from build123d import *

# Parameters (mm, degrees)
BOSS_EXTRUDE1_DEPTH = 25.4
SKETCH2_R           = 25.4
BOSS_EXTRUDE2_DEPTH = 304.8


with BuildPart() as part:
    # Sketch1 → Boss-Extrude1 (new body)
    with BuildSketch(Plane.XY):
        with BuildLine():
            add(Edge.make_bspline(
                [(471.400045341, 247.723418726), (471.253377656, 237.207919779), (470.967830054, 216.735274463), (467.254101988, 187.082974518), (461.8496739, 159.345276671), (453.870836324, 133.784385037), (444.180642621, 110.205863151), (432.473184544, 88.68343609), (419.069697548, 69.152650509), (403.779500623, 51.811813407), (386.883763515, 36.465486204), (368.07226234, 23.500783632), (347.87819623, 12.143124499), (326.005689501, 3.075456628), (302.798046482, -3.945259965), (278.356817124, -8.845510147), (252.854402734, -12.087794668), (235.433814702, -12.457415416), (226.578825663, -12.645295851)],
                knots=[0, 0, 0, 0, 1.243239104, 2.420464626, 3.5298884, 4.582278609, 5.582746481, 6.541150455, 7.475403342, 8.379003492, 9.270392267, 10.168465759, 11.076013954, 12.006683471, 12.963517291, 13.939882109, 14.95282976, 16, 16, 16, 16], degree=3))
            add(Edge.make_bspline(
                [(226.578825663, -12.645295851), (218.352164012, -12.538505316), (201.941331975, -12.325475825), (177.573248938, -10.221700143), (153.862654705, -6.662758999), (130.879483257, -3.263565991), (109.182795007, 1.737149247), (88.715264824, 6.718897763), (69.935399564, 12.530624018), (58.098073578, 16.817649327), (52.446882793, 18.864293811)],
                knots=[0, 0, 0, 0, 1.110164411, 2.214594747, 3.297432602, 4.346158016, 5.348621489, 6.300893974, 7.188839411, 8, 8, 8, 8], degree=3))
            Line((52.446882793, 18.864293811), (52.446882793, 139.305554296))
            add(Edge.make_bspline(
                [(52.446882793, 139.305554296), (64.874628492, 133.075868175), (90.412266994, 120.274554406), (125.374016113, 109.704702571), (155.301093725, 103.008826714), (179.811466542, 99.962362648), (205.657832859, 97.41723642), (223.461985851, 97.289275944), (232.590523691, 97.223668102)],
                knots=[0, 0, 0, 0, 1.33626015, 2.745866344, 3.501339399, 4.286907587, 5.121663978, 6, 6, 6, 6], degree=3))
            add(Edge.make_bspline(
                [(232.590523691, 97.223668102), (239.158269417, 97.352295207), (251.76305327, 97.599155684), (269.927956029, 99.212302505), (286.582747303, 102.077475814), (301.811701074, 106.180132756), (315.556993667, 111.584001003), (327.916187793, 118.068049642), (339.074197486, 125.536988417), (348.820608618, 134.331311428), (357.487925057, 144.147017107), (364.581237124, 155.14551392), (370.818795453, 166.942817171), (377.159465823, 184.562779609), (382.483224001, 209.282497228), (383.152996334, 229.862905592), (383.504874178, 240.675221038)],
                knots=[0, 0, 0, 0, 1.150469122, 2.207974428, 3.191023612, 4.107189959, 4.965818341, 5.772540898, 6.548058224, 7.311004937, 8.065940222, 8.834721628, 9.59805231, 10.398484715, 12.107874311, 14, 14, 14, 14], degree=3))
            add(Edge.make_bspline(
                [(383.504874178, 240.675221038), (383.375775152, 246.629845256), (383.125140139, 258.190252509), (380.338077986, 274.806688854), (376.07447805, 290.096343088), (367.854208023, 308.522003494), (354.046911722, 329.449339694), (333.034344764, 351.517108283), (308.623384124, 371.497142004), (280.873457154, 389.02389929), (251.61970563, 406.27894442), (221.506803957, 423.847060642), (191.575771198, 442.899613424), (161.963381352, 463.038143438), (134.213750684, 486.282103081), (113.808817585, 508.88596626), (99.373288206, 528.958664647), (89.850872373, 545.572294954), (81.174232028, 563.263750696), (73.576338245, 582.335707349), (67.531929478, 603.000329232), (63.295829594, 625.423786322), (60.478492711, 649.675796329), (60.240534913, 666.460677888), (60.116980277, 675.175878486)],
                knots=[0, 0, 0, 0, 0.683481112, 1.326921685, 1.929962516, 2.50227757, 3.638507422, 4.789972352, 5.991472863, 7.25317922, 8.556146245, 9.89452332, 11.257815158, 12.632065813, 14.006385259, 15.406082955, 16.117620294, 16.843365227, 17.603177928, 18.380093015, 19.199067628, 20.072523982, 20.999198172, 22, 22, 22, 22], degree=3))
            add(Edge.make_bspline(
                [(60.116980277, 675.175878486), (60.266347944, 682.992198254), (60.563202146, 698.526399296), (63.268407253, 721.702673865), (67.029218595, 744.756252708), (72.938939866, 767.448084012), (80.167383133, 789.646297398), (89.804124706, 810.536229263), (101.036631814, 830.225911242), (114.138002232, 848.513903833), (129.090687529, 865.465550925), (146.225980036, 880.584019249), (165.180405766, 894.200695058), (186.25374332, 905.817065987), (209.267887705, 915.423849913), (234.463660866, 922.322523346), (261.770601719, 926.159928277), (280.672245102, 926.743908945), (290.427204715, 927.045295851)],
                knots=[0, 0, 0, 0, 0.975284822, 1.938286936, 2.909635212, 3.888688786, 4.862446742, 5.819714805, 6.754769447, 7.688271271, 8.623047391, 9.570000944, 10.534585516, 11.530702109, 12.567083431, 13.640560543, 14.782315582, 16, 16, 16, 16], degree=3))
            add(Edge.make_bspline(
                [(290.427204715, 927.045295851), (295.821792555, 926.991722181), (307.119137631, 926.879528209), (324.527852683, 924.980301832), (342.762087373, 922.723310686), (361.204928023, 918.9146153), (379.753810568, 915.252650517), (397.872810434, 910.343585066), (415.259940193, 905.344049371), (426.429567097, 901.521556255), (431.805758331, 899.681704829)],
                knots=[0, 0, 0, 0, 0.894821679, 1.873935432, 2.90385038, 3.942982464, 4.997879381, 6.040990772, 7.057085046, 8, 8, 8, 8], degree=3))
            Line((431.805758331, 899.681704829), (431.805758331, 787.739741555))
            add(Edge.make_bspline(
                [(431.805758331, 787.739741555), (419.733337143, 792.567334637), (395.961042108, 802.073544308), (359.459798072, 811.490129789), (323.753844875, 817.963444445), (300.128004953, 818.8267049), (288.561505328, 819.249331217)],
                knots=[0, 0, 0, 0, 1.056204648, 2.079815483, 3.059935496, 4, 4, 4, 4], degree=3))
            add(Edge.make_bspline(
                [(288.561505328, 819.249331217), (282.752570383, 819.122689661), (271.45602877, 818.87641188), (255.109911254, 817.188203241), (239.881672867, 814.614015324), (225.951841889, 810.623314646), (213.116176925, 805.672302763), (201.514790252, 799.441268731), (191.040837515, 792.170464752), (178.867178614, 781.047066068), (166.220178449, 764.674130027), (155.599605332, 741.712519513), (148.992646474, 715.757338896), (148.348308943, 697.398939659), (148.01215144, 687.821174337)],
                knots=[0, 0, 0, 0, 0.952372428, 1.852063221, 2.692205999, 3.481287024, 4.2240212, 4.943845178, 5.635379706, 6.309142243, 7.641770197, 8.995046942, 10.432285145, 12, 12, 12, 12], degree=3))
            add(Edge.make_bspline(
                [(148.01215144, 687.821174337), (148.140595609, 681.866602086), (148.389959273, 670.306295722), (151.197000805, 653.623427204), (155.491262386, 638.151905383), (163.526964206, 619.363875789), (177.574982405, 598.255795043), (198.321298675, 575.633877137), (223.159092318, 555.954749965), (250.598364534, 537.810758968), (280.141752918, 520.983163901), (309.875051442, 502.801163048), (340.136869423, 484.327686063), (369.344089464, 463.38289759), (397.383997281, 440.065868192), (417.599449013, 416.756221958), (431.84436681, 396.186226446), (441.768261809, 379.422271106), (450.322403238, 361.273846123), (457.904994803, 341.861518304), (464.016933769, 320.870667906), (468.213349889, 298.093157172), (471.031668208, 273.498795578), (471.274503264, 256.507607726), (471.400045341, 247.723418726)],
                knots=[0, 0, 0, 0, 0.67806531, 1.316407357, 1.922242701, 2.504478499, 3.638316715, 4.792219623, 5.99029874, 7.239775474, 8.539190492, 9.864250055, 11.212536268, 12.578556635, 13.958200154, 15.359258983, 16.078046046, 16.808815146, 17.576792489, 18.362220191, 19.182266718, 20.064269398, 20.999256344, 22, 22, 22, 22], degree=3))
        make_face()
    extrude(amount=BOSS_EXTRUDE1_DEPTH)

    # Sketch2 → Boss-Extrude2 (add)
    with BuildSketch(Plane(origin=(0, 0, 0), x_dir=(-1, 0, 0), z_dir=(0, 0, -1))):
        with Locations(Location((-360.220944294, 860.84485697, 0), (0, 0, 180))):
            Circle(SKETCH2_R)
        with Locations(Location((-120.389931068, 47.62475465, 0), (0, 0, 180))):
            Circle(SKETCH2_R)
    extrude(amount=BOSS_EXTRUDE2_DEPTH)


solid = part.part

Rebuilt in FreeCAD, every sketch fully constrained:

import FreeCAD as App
import Part
import Sketcher

V = App.Vector
Q = App.Units.Quantity

doc = App.newDocument("Part")
body = doc.addObject("PartDesign::Body", "Body")

# Sketch on XY plane
sketch1 = body.newObject("Sketcher::SketchObject", "Sketch")
sketch1.AttachmentSupport = (doc.getObject("XY_Plane"), [""])
sketch1.MapMode = "FlatFace"
sketch1.addGeometry(Part.BSplineCurve([V(471.400045, 247.723419, 0), V(471.253378, 237.20792, 0), V(470.96783, 216.735274, 0), V(467.254102, 187.082975, 0), V(461.849674, 159.345277, 0), V(453.870836, 133.784385, 0), V(444.180643, 110.205863, 0), V(432.473185, 88.683436, 0), V(419.069698, 69.152651, 0), V(403.779501, 51.811813, 0), V(386.883764, 36.465486, 0), V(368.072262, 23.500784, 0), V(347.878196, 12.143124, 0), V(326.00569, 3.075457, 0), V(302.798046, -3.94526, 0), V(278.356817, -8.84551, 0), V(252.854403, -12.087795, 0), V(235.433815, -12.457415, 0), V(226.578826, -12.645296, 0)], [4, 1, 1, 1, 1, 1, 1, 1, 1, 1, 1, 1, 1, 1, 1, 1, 4], [0, 1.243239104, 2.420464626, 3.5298884, 4.582278609, 5.582746481, 6.541150455, 7.475403342, 8.379003492, 9.270392267, 10.168465759, 11.076013954, 12.006683471, 12.963517291, 13.939882109, 14.95282976, 16], False, 3, [1, 1, 1, 1, 1, 1, 1, 1, 1, 1, 1, 1, 1, 1, 1, 1, 1, 1, 1], False), False)
sketch1.addGeometry(Part.BSplineCurve([V(148.012151, 687.821174, 0), V(148.140596, 681.866602, 0), V(148.389959, 670.306296, 0), V(151.197001, 653.623427, 0), V(155.491262, 638.151905, 0), V(163.526964, 619.363876, 0), V(177.574982, 598.255795, 0), V(198.321299, 575.633877, 0), V(223.159092, 555.95475, 0), V(250.598365, 537.810759, 0), V(280.141753, 520.983164, 0), V(309.875051, 502.801163, 0), V(340.136869, 484.327686, 0), V(369.344089, 463.382898, 0), V(397.383997, 440.065868, 0), V(417.599449, 416.756222, 0), V(431.844367, 396.186226, 0), V(441.768262, 379.422271, 0), V(450.322403, 361.273846, 0), V(457.904995, 341.861518, 0), V(464.016934, 320.870668, 0), V(468.21335, 298.093157, 0), V(471.031668, 273.498796, 0), V(471.274503, 256.507608, 0), V(471.400045, 247.723419, 0)], [4, 1, 1, 1, 1, 1, 1, 1, 1, 1, 1, 1, 1, 1, 1, 1, 1, 1, 1, 1, 1, 1, 4], [0, 0.67806531, 1.316407357, 1.922242701, 2.504478499, 3.638316715, 4.792219623, 5.99029874, 7.239775474, 8.539190492, 9.864250055, 11.212536268, 12.578556635, 13.958200154, 15.359258983, 16.078046046, 16.808815146, 17.576792489, 18.362220191, 19.182266718, 20.064269398, 20.999256344, 22], False, 3, [1, 1, 1, 1, 1, 1, 1, 1, 1, 1, 1, 1, 1, 1, 1, 1, 1, 1, 1, 1, 1, 1, 1, 1, 1], False), False)
sketch1.addGeometry(Part.BSplineCurve([V(288.561505, 819.249331, 0), V(282.75257, 819.12269, 0), V(271.456029, 818.876412, 0), V(255.109911, 817.188203, 0), V(239.881673, 814.614015, 0), V(225.951842, 810.623315, 0), V(213.116177, 805.672303, 0), V(201.51479, 799.441269, 0), V(191.040838, 792.170465, 0), V(178.867179, 781.047066, 0), V(166.220178, 764.67413, 0), V(155.599605, 741.71252, 0), V(148.992646, 715.757339, 0), V(148.348309, 697.39894, 0), V(148.012151, 687.821174, 0)], [4, 1, 1, 1, 1, 1, 1, 1, 1, 1, 1, 1, 4], [0, 0.952372428, 1.852063221, 2.692205999, 3.481287024, 4.2240212, 4.943845178, 5.635379706, 6.309142243, 7.641770197, 8.995046942, 10.432285145, 12], False, 3, [1, 1, 1, 1, 1, 1, 1, 1, 1, 1, 1, 1, 1, 1, 1], False), False)
sketch1.addGeometry(Part.BSplineCurve([V(431.805758, 787.739742, 0), V(419.733337, 792.567335, 0), V(395.961042, 802.073544, 0), V(359.459798, 811.49013, 0), V(323.753845, 817.963444, 0), V(300.128005, 818.826705, 0), V(288.561505, 819.249331, 0)], [4, 1, 1, 1, 4], [0, 1.056204648, 2.079815483, 3.059935496, 4], False, 3, [1, 1, 1, 1, 1, 1, 1], False), False)
sketch1.addGeometry(Part.LineSegment(V(431.805758, 787.739742, 0), V(431.805758, 899.681705, 0)), False)
sketch1.addGeometry(Part.BSplineCurve([V(290.427205, 927.045296, 0), V(295.821793, 926.991722, 0), V(307.119138, 926.879528, 0), V(324.527853, 924.980302, 0), V(342.762087, 922.723311, 0), V(361.204928, 918.914615, 0), V(379.753811, 915.252651, 0), V(397.87281, 910.343585, 0), V(415.25994, 905.344049, 0), V(426.429567, 901.521556, 0), V(431.805758, 899.681705, 0)], [4, 1, 1, 1, 1, 1, 1, 1, 4], [0, 0.894821679, 1.873935432, 2.90385038, 3.942982464, 4.997879381, 6.040990772, 7.057085046, 8], False, 3, [1, 1, 1, 1, 1, 1, 1, 1, 1, 1, 1], False), False)
sketch1.addGeometry(Part.BSplineCurve([V(60.11698, 675.175878, 0), V(60.266348, 682.992198, 0), V(60.563202, 698.526399, 0), V(63.268407, 721.702674, 0), V(67.029219, 744.756253, 0), V(72.93894, 767.448084, 0), V(80.167383, 789.646297, 0), V(89.804125, 810.536229, 0), V(101.036632, 830.225911, 0), V(114.138002, 848.513904, 0), V(129.090688, 865.465551, 0), V(146.22598, 880.584019, 0), V(165.180406, 894.200695, 0), V(186.253743, 905.817066, 0), V(209.267888, 915.42385, 0), V(234.463661, 922.322523, 0), V(261.770602, 926.159928, 0), V(280.672245, 926.743909, 0), V(290.427205, 927.045296, 0)], [4, 1, 1, 1, 1, 1, 1, 1, 1, 1, 1, 1, 1, 1, 1, 1, 4], [0, 0.975284822, 1.938286936, 2.909635212, 3.888688786, 4.862446742, 5.819714805, 6.754769447, 7.688271271, 8.623047391, 9.570000944, 10.534585516, 11.530702109, 12.567083431, 13.640560543, 14.782315582, 16], False, 3, [1, 1, 1, 1, 1, 1, 1, 1, 1, 1, 1, 1, 1, 1, 1, 1, 1, 1, 1], False), False)
sketch1.addGeometry(Part.BSplineCurve([V(383.504874, 240.675221, 0), V(383.375775, 246.629845, 0), V(383.12514, 258.190253, 0), V(380.338078, 274.806689, 0), V(376.074478, 290.096343, 0), V(367.854208, 308.522003, 0), V(354.046912, 329.44934, 0), V(333.034345, 351.517108, 0), V(308.623384, 371.497142, 0), V(280.873457, 389.023899, 0), V(251.619706, 406.278944, 0), V(221.506804, 423.847061, 0), V(191.575771, 442.899613, 0), V(161.963381, 463.038143, 0), V(134.213751, 486.282103, 0), V(113.808818, 508.885966, 0), V(99.373288, 528.958665, 0), V(89.850872, 545.572295, 0), V(81.174232, 563.263751, 0), V(73.576338, 582.335707, 0), V(67.531929, 603.000329, 0), V(63.29583, 625.423786, 0), V(60.478493, 649.675796, 0), V(60.240535, 666.460678, 0), V(60.11698, 675.175878, 0)], [4, 1, 1, 1, 1, 1, 1, 1, 1, 1, 1, 1, 1, 1, 1, 1, 1, 1, 1, 1, 1, 1, 4], [0, 0.683481112, 1.326921685, 1.929962516, 2.50227757, 3.638507422, 4.789972352, 5.991472863, 7.25317922, 8.556146245, 9.89452332, 11.257815158, 12.632065813, 14.006385259, 15.406082955, 16.117620294, 16.843365227, 17.603177928, 18.380093015, 19.199067628, 20.072523982, 20.999198172, 22], False, 3, [1, 1, 1, 1, 1, 1, 1, 1, 1, 1, 1, 1, 1, 1, 1, 1, 1, 1, 1, 1, 1, 1, 1, 1, 1], False), False)
sketch1.addGeometry(Part.BSplineCurve([V(232.590524, 97.223668, 0), V(239.158269, 97.352295, 0), V(251.763053, 97.599156, 0), V(269.927956, 99.212303, 0), V(286.582747, 102.077476, 0), V(301.811701, 106.180133, 0), V(315.556994, 111.584001, 0), V(327.916188, 118.06805, 0), V(339.074197, 125.536988, 0), V(348.820609, 134.331311, 0), V(357.487925, 144.147017, 0), V(364.581237, 155.145514, 0), V(370.818795, 166.942817, 0), V(377.159466, 184.56278, 0), V(382.483224, 209.282497, 0), V(383.152996, 229.862906, 0), V(383.504874, 240.675221, 0)], [4, 1, 1, 1, 1, 1, 1, 1, 1, 1, 1, 1, 1, 1, 4], [0, 1.150469122, 2.207974428, 3.191023612, 4.107189959, 4.965818341, 5.772540898, 6.548058224, 7.311004937, 8.065940222, 8.834721628, 9.59805231, 10.398484715, 12.107874311, 14], False, 3, [1, 1, 1, 1, 1, 1, 1, 1, 1, 1, 1, 1, 1, 1, 1, 1, 1], False), False)
sketch1.addGeometry(Part.BSplineCurve([V(52.446883, 139.305554, 0), V(64.874628, 133.075868, 0), V(90.412267, 120.274554, 0), V(125.374016, 109.704703, 0), V(155.301094, 103.008827, 0), V(179.811467, 99.962363, 0), V(205.657833, 97.417236, 0), V(223.461986, 97.289276, 0), V(232.590524, 97.223668, 0)], [4, 1, 1, 1, 1, 1, 4], [0, 1.33626015, 2.745866344, 3.501339399, 4.286907587, 5.121663978, 6], False, 3, [1, 1, 1, 1, 1, 1, 1, 1, 1], False), False)
sketch1.addGeometry(Part.LineSegment(V(52.446883, 139.305554, 0), V(52.446883, 18.864294, 0)), False)
sketch1.addGeometry(Part.BSplineCurve([V(226.578826, -12.645296, 0), V(218.352164, -12.538505, 0), V(201.941332, -12.325476, 0), V(177.573249, -10.2217, 0), V(153.862655, -6.662759, 0), V(130.879483, -3.263566, 0), V(109.182795, 1.737149, 0), V(88.715265, 6.718898, 0), V(69.9354, 12.530624, 0), V(58.098074, 16.817649, 0), V(52.446883, 18.864294, 0)], [4, 1, 1, 1, 1, 1, 1, 1, 4], [0, 1.110164411, 2.214594747, 3.297432602, 4.346158016, 5.348621489, 6.300893974, 7.188839411, 8], False, 3, [1, 1, 1, 1, 1, 1, 1, 1, 1, 1, 1], False), False)
sketch1.addConstraint(Sketcher.Constraint("Block", 0))
sketch1.addConstraint(Sketcher.Constraint("Block", 1))
sketch1.addConstraint(Sketcher.Constraint("Block", 2))
sketch1.addConstraint(Sketcher.Constraint("Block", 3))
sketch1.addConstraint(Sketcher.Constraint("Block", 5))
sketch1.addConstraint(Sketcher.Constraint("Block", 6))
sketch1.addConstraint(Sketcher.Constraint("Block", 7))
sketch1.addConstraint(Sketcher.Constraint("Block", 8))
sketch1.addConstraint(Sketcher.Constraint("Block", 9))
sketch1.addConstraint(Sketcher.Constraint("Block", 11))
sketch1.addConstraint(Sketcher.Constraint("Coincident", 3, 1, 4, 1))
sketch1.addConstraint(Sketcher.Constraint("Coincident", 4, 2, 5, 2))
sketch1.addConstraint(Sketcher.Constraint("Coincident", 9, 1, 10, 1))
sketch1.addConstraint(Sketcher.Constraint("Coincident", 10, 2, 11, 2))
pad1 = body.newObject("PartDesign::Pad", "Pad")
pad1.Profile = sketch1
pad1.Length = Q("1 in")

# Sketch on XY plane
sketch2 = body.newObject("Sketcher::SketchObject", "Sketch001")
sketch2.AttachmentSupport = (doc.getObject("XY_Plane"), [""])
sketch2.MapMode = "FlatFace"
sketch2.addGeometry(Part.Circle(V(360.220944, 860.844857, 0), V(0, 0, 1), 25.4), False)
sketch2.addGeometry(Part.Circle(V(120.389931, 47.624755, 0), V(0, 0, 1), 25.4), False)
sketch2.addConstraint(Sketcher.Constraint("Equal", 0, 1))
sketch2.addConstraint(Sketcher.Constraint("Diameter", 0, Q("2 in")))
sketch2.addConstraint(Sketcher.Constraint("DistanceX", -1, 1, 1, 3, Q("120.389931 mm")))
sketch2.addConstraint(Sketcher.Constraint("DistanceX", -1, 1, 0, 3, Q("360.220944 mm")))
sketch2.addConstraint(Sketcher.Constraint("DistanceY", -1, 1, 0, 3, Q("860.844857 mm")))
sketch2.addConstraint(Sketcher.Constraint("DistanceY", -1, 1, 1, 3, Q("47.624755 mm")))
pad2 = body.newObject("PartDesign::Pad", "Pad001")
pad2.Profile = sketch2
pad2.Length = Q("12 in")
pad2.Reversed = True

doc.recompute()
